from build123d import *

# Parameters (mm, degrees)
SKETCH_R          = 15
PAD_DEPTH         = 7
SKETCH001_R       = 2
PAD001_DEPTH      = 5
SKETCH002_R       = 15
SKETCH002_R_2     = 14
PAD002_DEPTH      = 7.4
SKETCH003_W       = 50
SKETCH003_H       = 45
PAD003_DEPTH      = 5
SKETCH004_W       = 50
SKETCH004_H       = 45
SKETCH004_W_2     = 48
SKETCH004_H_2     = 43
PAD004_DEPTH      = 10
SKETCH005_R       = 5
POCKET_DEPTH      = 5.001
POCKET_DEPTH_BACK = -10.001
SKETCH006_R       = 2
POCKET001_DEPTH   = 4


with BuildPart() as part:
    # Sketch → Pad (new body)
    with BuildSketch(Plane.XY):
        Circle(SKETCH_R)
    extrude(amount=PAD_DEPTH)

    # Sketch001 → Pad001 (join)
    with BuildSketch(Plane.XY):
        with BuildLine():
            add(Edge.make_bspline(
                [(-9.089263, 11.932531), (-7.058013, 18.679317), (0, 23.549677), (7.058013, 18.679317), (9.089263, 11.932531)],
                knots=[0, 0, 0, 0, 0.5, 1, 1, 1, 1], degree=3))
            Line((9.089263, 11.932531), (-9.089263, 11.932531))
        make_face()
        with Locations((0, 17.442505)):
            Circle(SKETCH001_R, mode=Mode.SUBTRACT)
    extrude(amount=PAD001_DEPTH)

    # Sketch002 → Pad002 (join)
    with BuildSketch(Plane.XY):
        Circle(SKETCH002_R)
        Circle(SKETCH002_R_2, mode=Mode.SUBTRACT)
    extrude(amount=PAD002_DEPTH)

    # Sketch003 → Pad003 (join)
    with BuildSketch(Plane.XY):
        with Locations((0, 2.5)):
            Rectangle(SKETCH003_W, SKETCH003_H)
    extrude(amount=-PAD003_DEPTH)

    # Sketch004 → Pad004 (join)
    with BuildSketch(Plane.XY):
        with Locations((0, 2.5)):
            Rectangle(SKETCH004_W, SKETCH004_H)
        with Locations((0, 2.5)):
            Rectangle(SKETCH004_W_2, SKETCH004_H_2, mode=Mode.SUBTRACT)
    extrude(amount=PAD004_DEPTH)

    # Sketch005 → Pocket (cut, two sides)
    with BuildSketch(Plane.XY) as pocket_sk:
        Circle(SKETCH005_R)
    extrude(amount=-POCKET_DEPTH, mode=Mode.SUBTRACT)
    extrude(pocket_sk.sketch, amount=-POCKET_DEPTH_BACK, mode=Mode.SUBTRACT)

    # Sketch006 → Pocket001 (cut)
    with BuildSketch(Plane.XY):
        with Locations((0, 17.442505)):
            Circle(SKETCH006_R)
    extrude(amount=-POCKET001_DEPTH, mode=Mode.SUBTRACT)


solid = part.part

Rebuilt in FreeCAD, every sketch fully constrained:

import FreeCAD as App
import Part
import Sketcher
from FreeCAD import Vector

doc = App.newDocument("Part")
body = doc.addObject("PartDesign::Body", "Body")

sketch1 = body.newObject("Sketcher::SketchObject", "Sketch")
sketch1.AttachmentSupport = (doc.getObject("XY_Plane"), [""])
sketch1.MapMode = "FlatFace"
sketch1.addGeometry(Part.Circle(Vector(0, 0, 0), Vector(0, 0, 1), 15), False)
sketch1.addConstraint([
    Sketcher.Constraint("Coincident", 0, 3, -1, 1),
    Sketcher.Constraint("Diameter", 0, 30.0),
])
pad1 = body.newObject("PartDesign::Pad", "Pad")
pad1.Profile = sketch1
pad1.Length = 7

sketch2 = body.newObject("Sketcher::SketchObject", "Sketch001")
sketch2.AttachmentSupport = (doc.getObject("XY_Plane"), [""])
sketch2.MapMode = "FlatFace"
sketch2.addGeometry([
    Part.BSplineCurve([Vector(-9.089263, 11.932531, 0), Vector(-7.058013, 18.679317, 0), Vector(0, 23.549677, 0), Vector(7.058013, 18.679317, 0), Vector(9.089263, 11.932531, 0)], [4, 1, 4], [0, 0.5, 1], False, 3, [1, 1, 1, 1, 1], False),
    Part.LineSegment(Vector(-9.089263, 11.932531, 0), Vector(9.089263, 11.932531, 0)),
    Part.Circle(Vector(0, 17.442505, 0), Vector(0, 0, 1), 2),
], False)
sketch2.addConstraint([
    Sketcher.Constraint("Block", 0),
    Sketcher.Constraint("Coincident", 0, 1, 1, 1),
    Sketcher.Constraint("Coincident", 1, 2, 0, 2),
    Sketcher.Constraint("PointOnObject", 2, 3, -2),
    Sketcher.Constraint("Diameter", 2, 4.0),
    Sketcher.Constraint("DistanceY", -1, 1, 2, 3, 17.442505),
])
pad2 = body.newObject("PartDesign::Pad", "Pad001")
pad2.Profile = sketch2
pad2.Length = 5

sketch3 = body.newObject("Sketcher::SketchObject", "Sketch002")
sketch3.AttachmentSupport = (doc.getObject("XY_Plane"), [""])
sketch3.MapMode = "FlatFace"
sketch3.addGeometry([
    Part.Circle(Vector(0, 0, 0), Vector(0, 0, 1), 15),
    Part.Circle(Vector(0, 0, 0), Vector(0, 0, 1), 14),
], False)
sketch3.addConstraint([
    Sketcher.Constraint("Coincident", 0, 3, -1, 1),
    Sketcher.Constraint("Coincident", 1, 3, -1, 1),
    Sketcher.Constraint("Diameter", 0, 30.0),
    Sketcher.Constraint("Diameter", 1, 28.0),
])
pad3 = body.newObject("PartDesign::Pad", "Pad002")
pad3.Profile = sketch3
pad3.Length = 7.4

sketch4 = body.newObject("Sketcher::SketchObject", "Sketch003")
sketch4.AttachmentSupport = (doc.getObject("XY_Plane"), [""])
sketch4.MapMode = "FlatFace"
sketch4.addGeometry([
    Part.LineSegment(Vector(-25, 25, 0), Vector(-25, -20, 0)),
    Part.LineSegment(Vector(-25, -20, 0), Vector(25, -20, 0)),
    Part.LineSegment(Vector(25, -20, 0), Vector(25, 25, 0)),
    Part.LineSegment(Vector(25, 25, 0), Vector(-25, 25, 0)),
], False)
sketch4.addConstraint([
    Sketcher.Constraint("Coincident", 0, 2, 1, 1),
    Sketcher.Constraint("Coincident", 1, 2, 2, 1),
    Sketcher.Constraint("Coincident", 2, 2, 3, 1),
    Sketcher.Constraint("Coincident", 3, 2, 0, 1),
    Sketcher.Constraint("Vertical", 0),
    Sketcher.Constraint("Horizontal", 1),
    Sketcher.Constraint("Vertical", 2),
    Sketcher.Constraint("Horizontal", 3),
    Sketcher.Constraint("DistanceX", 1, 1, 1, 2, 50.0),
    Sketcher.Constraint("DistanceY", 0, 2, 0, 1, 45.0),
    Sketcher.Constraint("DistanceX", 0, 2, -1, 1, 25.0),
    Sketcher.Constraint("DistanceY", 0, 2, -1, 1, 20.0),
])
pad4 = body.newObject("PartDesign::Pad", "Pad003")
pad4.Profile = sketch4
pad4.Length = 5
pad4.Reversed = True

sketch5 = body.newObject("Sketcher::SketchObject", "Sketch004")
sketch5.AttachmentSupport = (doc.getObject("XY_Plane"), [""])
sketch5.MapMode = "FlatFace"
sketch5.addGeometry([
    Part.LineSegment(Vector(-25, 25, 0), Vector(-25, -20, 0)),
    Part.LineSegment(Vector(-25, -20, 0), Vector(25, -20, 0)),
    Part.LineSegment(Vector(25, -20, 0), Vector(25, 25, 0)),
    Part.LineSegment(Vector(25, 25, 0), Vector(-25, 25, 0)),
    Part.LineSegment(Vector(24, -19, 0), Vector(-24, -19, 0)),
    Part.LineSegment(Vector(-24, -19, 0), Vector(-24, 24, 0)),
    Part.LineSegment(Vector(-24, 24, 0), Vector(24, 24, 0)),
    Part.LineSegment(Vector(24, 24, 0), Vector(24, -19, 0)),
], False)
sketch5.addConstraint([
    Sketcher.Constraint("Coincident", 0, 2, 1, 1),
    Sketcher.Constraint("Coincident", 1, 2, 2, 1),
    Sketcher.Constraint("Coincident", 2, 2, 3, 1),
    Sketcher.Constraint("Coincident", 3, 2, 0, 1),
    Sketcher.Constraint("Coincident", 4, 2, 5, 1),
    Sketcher.Constraint("Coincident", 5, 2, 6, 1),
    Sketcher.Constraint("Coincident", 6, 2, 7, 1),
    Sketcher.Constraint("Coincident", 7, 2, 4, 1),
    Sketcher.Constraint("Vertical", 0),
    Sketcher.Constraint("Horizontal", 1),
    Sketcher.Constraint("Vertical", 2),
    Sketcher.Constraint("Horizontal", 3),
    Sketcher.Constraint("Horizontal", 4),
    Sketcher.Constraint("Vertical", 5),
    Sketcher.Constraint("Horizontal", 6),
    Sketcher.Constraint("Vertical", 7),
    Sketcher.Constraint("DistanceX", 1, 1, 1, 2, 50.0),
    Sketcher.Constraint("DistanceX", 4, 2, 4, 1, 48.0),
    Sketcher.Constraint("DistanceY", 0, 2, 0, 1, 45.0),
    Sketcher.Constraint("DistanceY", 5, 1, 5, 2, 43.0),
    Sketcher.Constraint("DistanceX", 0, 2, -1, 1, 25.0),
    Sketcher.Constraint("DistanceY", 0, 2, -1, 1, 20.0),
    Sketcher.Constraint("DistanceX", 4, 2, -1, 1, 24.0),
    Sketcher.Constraint("DistanceY", 4, 2, -1, 1, 19.0),
])
pad5 = body.newObject("PartDesign::Pad", "Pad004")
pad5.Profile = sketch5
pad5.Length = 10

sketch6 = body.newObject("Sketcher::SketchObject", "Sketch005")
sketch6.AttachmentSupport = (doc.getObject("XY_Plane"), [""])
sketch6.MapMode = "FlatFace"
sketch6.addGeometry(Part.Circle(Vector(0, 0, 0), Vector(0, 0, 1), 5), False)
sketch6.addConstraint([
    Sketcher.Constraint("Coincident", 0, 3, -1, 1),
    Sketcher.Constraint("Diameter", 0, 10.0),
])
pocket1 = body.newObject("PartDesign::Pocket", "Pocket")
pocket1.Profile = sketch6
pocket1.Type = "ThroughAll"
pocket1.Midplane = True

sketch7 = body.newObject("Sketcher::SketchObject", "Sketch006")
sketch7.AttachmentSupport = (doc.getObject("XY_Plane"), [""])
sketch7.MapMode = "FlatFace"
sketch7.addGeometry(Part.Circle(Vector(0, 17.4, 0), Vector(0, 0, 1), 2), False)
sketch7.addConstraint([
    Sketcher.Constraint("PointOnObject", 0, 3, -2),
    Sketcher.Constraint("Diameter", 0, 4.0),
    Sketcher.Constraint("DistanceY", -1, 1, 0, 3, 17.442505),
])
pocket2 = body.newObject("PartDesign::Pocket", "Pocket001")
pocket2.Profile = sketch7
pocket2.Length = 4

doc.recompute()
